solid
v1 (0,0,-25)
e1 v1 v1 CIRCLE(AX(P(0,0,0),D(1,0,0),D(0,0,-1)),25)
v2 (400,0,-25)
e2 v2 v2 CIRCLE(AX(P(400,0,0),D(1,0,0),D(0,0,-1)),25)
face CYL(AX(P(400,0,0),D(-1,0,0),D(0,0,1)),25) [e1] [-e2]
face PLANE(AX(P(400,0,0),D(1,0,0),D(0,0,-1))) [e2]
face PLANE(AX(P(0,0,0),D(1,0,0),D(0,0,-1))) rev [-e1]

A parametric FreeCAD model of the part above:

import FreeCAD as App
import Part
import Sketcher

V = App.Vector

doc = App.newDocument("Part")
body = doc.addObject("PartDesign::Body", "Body")

# Sketch on YZ plane
sketch1 = body.newObject("Sketcher::SketchObject", "Sketch")
sketch1.AttachmentSupport = (doc.getObject("YZ_Plane"), [""])
sketch1.MapMode = "FlatFace"
sketch1.addGeometry(Part.Circle(V(0, 0, 0), V(0, 0, 1), 25), False)
sketch1.addConstraint(Sketcher.Constraint("Coincident", 0, 3, -1, 1))
sketch1.addConstraint(Sketcher.Constraint("Diameter", 0, 50.0))
pad1 = body.newObject("PartDesign::Pad", "Pad")
pad1.Profile = sketch1
pad1.Length = 400

doc.recompute()
